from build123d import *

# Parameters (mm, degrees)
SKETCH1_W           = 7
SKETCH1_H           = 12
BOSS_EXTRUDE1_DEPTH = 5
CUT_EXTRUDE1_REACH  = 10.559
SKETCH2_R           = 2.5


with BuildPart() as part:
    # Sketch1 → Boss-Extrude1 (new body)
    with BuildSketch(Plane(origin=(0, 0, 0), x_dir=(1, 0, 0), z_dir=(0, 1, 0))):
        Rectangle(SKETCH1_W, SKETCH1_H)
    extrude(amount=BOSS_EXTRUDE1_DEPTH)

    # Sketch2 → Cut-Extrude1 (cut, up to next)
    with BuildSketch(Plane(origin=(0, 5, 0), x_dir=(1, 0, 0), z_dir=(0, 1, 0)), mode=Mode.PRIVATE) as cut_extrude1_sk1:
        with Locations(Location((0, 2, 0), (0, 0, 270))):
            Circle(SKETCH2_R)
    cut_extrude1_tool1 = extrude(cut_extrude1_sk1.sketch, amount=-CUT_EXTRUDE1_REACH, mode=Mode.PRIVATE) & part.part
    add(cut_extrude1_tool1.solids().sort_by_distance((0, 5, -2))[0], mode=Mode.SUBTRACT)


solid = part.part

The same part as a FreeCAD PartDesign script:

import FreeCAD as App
import Part
import Sketcher
from FreeCAD import Vector


def add_polygon(sketch, points):
    """Adds a closed chain of lines whose ends are joined by coincident constraints."""
    first, n = sketch.GeometryCount, len(points)
    for a, b in zip(points, points[1:] + points[:1]):
        sketch.addGeometry(Part.LineSegment(App.Vector(*a, 0), App.Vector(*b, 0)), False)
    for i in range(n):
        sketch.addConstraint(Sketcher.Constraint("Coincident", first + i, 2, first + (i + 1) % n, 1))

doc = App.newDocument("Part")
body = doc.addObject("PartDesign::Body", "Body")

# Sketch on XZ plane
sketch1 = body.newObject("Sketcher::SketchObject", "Sketch")
sketch1.AttachmentSupport = (doc.getObject("XZ_Plane"), [""])
sketch1.MapMode = "FlatFace"
add_polygon(sketch1, [(-4, -6), (-4, 6), (4, 6), (4, -6)])  # lines 0-3
sketch1.addConstraint(Sketcher.Constraint("Vertical", 0))
sketch1.addConstraint(Sketcher.Constraint("Horizontal", 1))
sketch1.addConstraint(Sketcher.Constraint("Vertical", 2))
sketch1.addConstraint(Sketcher.Constraint("Horizontal", 3))
sketch1.addConstraint(Sketcher.Constraint("Symmetric", 0, 2, 2, 2, -1, 1))
sketch1.addConstraint(Sketcher.Constraint("DistanceX", 1, 1, 1, 2, 7.0))
sketch1.addConstraint(Sketcher.Constraint("DistanceY", 0, 1, 0, 2, 12.0))
pad1 = body.newObject("PartDesign::Pad", "Pad")
pad1.Profile = sketch1
pad1.Length = 5
pad1.Reversed = True

# Sketch on XZ plane
sketch2 = body.newObject("Sketcher::SketchObject", "Sketch001")
sketch2.AttachmentSupport = (doc.getObject("XZ_Plane"), [""])
sketch2.MapMode = "FlatFace"
sketch2.AttachmentOffset = App.Placement(Vector(0, 0, -5), App.Rotation())
sketch2.addGeometry(Part.Circle(Vector(0, -2, 0), Vector(0, 0, 1), 2.5), False)
sketch2.addConstraint(Sketcher.Constraint("PointOnObject", 0, 3, -2))
sketch2.addConstraint(Sketcher.Constraint("Diameter", 0, 5.0))
sketch2.addConstraint(Sketcher.Constraint("DistanceY", 0, 3, -1, 1, 2.0))
pocket1 = body.newObject("PartDesign::Pocket", "Pocket")
pocket1.Profile = sketch2
pocket1.Type = "UpToFirst"
pocket1.Reversed = True

doc.recompute()
